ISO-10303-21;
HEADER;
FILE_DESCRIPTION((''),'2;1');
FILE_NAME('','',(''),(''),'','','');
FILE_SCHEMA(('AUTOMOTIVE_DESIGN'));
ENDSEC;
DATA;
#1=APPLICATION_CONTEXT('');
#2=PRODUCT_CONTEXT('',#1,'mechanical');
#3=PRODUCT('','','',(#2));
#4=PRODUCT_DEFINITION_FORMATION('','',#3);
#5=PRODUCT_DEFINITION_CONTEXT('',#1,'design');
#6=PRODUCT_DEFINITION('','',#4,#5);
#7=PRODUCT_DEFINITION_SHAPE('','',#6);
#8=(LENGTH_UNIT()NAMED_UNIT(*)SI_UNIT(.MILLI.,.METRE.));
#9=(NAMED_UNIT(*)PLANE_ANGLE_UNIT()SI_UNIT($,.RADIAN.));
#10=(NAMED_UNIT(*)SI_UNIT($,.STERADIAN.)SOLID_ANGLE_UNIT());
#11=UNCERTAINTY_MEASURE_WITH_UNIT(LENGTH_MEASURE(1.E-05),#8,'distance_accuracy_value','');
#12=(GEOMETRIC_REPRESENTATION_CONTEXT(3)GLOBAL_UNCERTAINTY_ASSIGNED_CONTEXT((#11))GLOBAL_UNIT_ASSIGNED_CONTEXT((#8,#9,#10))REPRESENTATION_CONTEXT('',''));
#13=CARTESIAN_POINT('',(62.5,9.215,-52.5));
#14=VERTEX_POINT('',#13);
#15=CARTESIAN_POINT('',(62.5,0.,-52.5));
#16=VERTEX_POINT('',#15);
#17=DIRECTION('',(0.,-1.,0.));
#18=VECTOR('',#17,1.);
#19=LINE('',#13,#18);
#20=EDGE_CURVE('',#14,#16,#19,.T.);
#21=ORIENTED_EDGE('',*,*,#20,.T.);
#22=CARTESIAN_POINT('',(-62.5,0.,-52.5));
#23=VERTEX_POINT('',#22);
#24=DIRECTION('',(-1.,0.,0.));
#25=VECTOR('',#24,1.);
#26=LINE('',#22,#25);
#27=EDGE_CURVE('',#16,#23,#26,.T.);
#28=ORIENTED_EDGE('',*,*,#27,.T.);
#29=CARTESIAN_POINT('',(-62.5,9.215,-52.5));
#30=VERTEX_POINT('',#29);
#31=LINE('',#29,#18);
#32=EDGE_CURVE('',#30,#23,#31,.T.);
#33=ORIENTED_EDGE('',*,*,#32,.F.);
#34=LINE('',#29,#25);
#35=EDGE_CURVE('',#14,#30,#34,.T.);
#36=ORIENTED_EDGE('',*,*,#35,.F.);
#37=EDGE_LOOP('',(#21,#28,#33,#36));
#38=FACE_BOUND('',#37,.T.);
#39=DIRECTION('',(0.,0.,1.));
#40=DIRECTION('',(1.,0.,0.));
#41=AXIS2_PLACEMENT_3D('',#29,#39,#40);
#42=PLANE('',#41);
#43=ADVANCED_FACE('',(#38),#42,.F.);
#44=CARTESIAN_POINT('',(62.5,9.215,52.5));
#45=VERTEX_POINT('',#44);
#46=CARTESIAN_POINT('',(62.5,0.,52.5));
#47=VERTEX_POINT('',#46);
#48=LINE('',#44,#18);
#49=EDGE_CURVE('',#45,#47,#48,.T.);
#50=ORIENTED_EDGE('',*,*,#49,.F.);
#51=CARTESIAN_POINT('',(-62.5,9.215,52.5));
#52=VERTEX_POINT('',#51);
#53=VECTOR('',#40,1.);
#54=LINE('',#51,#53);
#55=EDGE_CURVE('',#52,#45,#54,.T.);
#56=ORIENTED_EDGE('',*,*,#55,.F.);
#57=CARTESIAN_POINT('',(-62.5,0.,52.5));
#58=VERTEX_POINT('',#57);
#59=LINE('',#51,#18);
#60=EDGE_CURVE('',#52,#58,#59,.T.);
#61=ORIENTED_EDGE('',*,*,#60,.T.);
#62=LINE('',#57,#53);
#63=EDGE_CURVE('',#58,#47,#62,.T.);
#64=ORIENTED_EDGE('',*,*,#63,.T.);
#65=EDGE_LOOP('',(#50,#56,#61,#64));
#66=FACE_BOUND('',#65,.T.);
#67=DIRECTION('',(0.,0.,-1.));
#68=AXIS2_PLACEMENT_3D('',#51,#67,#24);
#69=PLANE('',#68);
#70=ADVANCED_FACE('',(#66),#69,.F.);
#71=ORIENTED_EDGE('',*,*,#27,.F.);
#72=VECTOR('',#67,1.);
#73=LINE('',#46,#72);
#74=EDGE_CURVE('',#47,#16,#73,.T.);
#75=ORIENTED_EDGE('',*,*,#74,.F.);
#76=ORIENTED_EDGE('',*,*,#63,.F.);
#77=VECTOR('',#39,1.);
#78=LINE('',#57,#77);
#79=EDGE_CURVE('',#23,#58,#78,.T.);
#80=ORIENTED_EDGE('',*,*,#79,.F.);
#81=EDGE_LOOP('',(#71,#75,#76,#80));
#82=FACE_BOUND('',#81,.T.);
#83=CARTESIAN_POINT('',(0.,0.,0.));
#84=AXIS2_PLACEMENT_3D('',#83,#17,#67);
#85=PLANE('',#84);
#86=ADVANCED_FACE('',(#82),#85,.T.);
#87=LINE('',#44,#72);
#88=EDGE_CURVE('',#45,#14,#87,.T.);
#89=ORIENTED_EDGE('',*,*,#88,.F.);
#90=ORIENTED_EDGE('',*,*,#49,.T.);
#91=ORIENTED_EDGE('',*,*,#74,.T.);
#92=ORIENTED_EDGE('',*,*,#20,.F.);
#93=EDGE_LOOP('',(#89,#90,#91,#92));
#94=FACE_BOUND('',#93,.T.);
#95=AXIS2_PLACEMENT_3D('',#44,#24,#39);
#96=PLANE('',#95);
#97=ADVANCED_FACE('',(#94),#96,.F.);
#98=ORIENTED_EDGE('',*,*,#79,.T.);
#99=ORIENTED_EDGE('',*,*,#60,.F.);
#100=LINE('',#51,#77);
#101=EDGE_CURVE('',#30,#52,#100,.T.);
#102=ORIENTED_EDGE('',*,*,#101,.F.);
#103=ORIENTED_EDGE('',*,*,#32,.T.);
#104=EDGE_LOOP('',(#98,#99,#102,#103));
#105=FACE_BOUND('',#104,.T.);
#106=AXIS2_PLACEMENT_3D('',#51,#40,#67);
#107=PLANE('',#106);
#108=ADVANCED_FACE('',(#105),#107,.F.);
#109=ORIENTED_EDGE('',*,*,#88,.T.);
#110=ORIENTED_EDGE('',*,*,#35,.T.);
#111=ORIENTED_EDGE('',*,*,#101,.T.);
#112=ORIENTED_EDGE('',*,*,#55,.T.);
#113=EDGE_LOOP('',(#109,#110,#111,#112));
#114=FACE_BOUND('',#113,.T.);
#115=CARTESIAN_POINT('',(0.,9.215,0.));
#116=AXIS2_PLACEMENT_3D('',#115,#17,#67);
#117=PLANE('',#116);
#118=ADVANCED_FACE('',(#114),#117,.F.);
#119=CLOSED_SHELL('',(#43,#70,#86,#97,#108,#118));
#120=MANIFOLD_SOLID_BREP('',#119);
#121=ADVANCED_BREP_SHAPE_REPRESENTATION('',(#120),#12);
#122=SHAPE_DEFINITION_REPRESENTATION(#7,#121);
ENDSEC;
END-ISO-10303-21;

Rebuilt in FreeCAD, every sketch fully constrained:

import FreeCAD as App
import Part
import Sketcher

V = App.Vector
Q = App.Units.Quantity

doc = App.newDocument("Part")
body = doc.addObject("PartDesign::Body", "Body")

# Sketch on XZ plane
sketch1 = body.newObject("Sketcher::SketchObject", "Sketch")
sketch1.AttachmentSupport = (doc.getObject("XZ_Plane"), [""])
sketch1.MapMode = "FlatFace"
sketch1.addGeometry([
    Part.LineSegment(V(-62.5, -52.5, 0), V(-62.5, 52.5, 0)),
    Part.LineSegment(V(-62.5, 52.5, 0), V(62.5, 52.5, 0)),
    Part.LineSegment(V(62.5, 52.5, 0), V(62.5, -52.5, 0)),
    Part.LineSegment(V(62.5, -52.5, 0), V(-62.5, -52.5, 0)),
], False)
sketch1.addConstraint([
    Sketcher.Constraint("Coincident", 0, 2, 1, 1),
    Sketcher.Constraint("Coincident", 1, 2, 2, 1),
    Sketcher.Constraint("Coincident", 2, 2, 3, 1),
    Sketcher.Constraint("Coincident", 3, 2, 0, 1),
    Sketcher.Constraint("Vertical", 0),
    Sketcher.Constraint("Horizontal", 1),
    Sketcher.Constraint("Vertical", 2),
    Sketcher.Constraint("Horizontal", 3),
    Sketcher.Constraint("Symmetric", 0, 2, 2, 2, -1, 1),
    Sketcher.Constraint("DistanceX", 1, 1, 1, 2, Q("125 mm")),
    Sketcher.Constraint("DistanceY", 0, 1, 0, 2, Q("105 mm")),
])
pad1 = body.newObject("PartDesign::Pad", "Pad")
pad1.Profile = sketch1
pad1.Length = 9.215
pad1.Reversed = True

doc.recompute()
